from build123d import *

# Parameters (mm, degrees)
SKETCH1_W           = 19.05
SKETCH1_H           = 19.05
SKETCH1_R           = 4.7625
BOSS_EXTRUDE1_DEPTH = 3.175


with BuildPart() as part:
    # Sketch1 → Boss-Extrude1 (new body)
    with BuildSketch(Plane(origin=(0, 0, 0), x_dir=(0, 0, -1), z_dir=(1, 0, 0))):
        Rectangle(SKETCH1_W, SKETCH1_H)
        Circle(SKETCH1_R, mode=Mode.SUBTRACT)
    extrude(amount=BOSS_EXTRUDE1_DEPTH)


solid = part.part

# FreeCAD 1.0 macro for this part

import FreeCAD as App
import Part
import Sketcher

V = App.Vector
Q = App.Units.Quantity


def add_polygon(sketch, points):
    """Adds a closed chain of lines whose ends are joined by coincident constraints."""
    first, n = sketch.GeometryCount, len(points)
    for a, b in zip(points, points[1:] + points[:1]):
        sketch.addGeometry(Part.LineSegment(App.Vector(*a, 0), App.Vector(*b, 0)), False)
    for i in range(n):
        sketch.addConstraint(Sketcher.Constraint("Coincident", first + i, 2, first + (i + 1) % n, 1))

doc = App.newDocument("Part")
body = doc.addObject("PartDesign::Body", "Body")

# Sketch on YZ plane
sketch1 = body.newObject("Sketcher::SketchObject", "Sketch")
sketch1.AttachmentSupport = (doc.getObject("YZ_Plane"), [""])
sketch1.MapMode = "FlatFace"
add_polygon(sketch1, [(9.5, 9.5), (-9.5, 9.5), (-9.5, -9.5), (9.5, -9.5)])  # lines 0-3
sketch1.addGeometry(Part.Circle(V(0, 0, 0), V(0, 0, 1), 4.8), False)  # 4
sketch1.addConstraint([
    Sketcher.Constraint("Horizontal", 0),
    Sketcher.Constraint("Vertical", 1),
    Sketcher.Constraint("Horizontal", 2),
    Sketcher.Constraint("Vertical", 3),
    Sketcher.Constraint("Coincident", 4, 3, -1, 1),
    Sketcher.Constraint("Symmetric", 0, 2, 2, 2, -1, 1),
    Sketcher.Constraint("Equal", 2, 1),
    Sketcher.Constraint("Diameter", 4, Q("0.375 in")),
    Sketcher.Constraint("DistanceX", 0, 2, 0, 1, Q("0.75 in")),
])
pad1 = body.newObject("PartDesign::Pad", "Pad")
pad1.Profile = sketch1
pad1.Length = Q("0.125 in")

doc.recompute()
